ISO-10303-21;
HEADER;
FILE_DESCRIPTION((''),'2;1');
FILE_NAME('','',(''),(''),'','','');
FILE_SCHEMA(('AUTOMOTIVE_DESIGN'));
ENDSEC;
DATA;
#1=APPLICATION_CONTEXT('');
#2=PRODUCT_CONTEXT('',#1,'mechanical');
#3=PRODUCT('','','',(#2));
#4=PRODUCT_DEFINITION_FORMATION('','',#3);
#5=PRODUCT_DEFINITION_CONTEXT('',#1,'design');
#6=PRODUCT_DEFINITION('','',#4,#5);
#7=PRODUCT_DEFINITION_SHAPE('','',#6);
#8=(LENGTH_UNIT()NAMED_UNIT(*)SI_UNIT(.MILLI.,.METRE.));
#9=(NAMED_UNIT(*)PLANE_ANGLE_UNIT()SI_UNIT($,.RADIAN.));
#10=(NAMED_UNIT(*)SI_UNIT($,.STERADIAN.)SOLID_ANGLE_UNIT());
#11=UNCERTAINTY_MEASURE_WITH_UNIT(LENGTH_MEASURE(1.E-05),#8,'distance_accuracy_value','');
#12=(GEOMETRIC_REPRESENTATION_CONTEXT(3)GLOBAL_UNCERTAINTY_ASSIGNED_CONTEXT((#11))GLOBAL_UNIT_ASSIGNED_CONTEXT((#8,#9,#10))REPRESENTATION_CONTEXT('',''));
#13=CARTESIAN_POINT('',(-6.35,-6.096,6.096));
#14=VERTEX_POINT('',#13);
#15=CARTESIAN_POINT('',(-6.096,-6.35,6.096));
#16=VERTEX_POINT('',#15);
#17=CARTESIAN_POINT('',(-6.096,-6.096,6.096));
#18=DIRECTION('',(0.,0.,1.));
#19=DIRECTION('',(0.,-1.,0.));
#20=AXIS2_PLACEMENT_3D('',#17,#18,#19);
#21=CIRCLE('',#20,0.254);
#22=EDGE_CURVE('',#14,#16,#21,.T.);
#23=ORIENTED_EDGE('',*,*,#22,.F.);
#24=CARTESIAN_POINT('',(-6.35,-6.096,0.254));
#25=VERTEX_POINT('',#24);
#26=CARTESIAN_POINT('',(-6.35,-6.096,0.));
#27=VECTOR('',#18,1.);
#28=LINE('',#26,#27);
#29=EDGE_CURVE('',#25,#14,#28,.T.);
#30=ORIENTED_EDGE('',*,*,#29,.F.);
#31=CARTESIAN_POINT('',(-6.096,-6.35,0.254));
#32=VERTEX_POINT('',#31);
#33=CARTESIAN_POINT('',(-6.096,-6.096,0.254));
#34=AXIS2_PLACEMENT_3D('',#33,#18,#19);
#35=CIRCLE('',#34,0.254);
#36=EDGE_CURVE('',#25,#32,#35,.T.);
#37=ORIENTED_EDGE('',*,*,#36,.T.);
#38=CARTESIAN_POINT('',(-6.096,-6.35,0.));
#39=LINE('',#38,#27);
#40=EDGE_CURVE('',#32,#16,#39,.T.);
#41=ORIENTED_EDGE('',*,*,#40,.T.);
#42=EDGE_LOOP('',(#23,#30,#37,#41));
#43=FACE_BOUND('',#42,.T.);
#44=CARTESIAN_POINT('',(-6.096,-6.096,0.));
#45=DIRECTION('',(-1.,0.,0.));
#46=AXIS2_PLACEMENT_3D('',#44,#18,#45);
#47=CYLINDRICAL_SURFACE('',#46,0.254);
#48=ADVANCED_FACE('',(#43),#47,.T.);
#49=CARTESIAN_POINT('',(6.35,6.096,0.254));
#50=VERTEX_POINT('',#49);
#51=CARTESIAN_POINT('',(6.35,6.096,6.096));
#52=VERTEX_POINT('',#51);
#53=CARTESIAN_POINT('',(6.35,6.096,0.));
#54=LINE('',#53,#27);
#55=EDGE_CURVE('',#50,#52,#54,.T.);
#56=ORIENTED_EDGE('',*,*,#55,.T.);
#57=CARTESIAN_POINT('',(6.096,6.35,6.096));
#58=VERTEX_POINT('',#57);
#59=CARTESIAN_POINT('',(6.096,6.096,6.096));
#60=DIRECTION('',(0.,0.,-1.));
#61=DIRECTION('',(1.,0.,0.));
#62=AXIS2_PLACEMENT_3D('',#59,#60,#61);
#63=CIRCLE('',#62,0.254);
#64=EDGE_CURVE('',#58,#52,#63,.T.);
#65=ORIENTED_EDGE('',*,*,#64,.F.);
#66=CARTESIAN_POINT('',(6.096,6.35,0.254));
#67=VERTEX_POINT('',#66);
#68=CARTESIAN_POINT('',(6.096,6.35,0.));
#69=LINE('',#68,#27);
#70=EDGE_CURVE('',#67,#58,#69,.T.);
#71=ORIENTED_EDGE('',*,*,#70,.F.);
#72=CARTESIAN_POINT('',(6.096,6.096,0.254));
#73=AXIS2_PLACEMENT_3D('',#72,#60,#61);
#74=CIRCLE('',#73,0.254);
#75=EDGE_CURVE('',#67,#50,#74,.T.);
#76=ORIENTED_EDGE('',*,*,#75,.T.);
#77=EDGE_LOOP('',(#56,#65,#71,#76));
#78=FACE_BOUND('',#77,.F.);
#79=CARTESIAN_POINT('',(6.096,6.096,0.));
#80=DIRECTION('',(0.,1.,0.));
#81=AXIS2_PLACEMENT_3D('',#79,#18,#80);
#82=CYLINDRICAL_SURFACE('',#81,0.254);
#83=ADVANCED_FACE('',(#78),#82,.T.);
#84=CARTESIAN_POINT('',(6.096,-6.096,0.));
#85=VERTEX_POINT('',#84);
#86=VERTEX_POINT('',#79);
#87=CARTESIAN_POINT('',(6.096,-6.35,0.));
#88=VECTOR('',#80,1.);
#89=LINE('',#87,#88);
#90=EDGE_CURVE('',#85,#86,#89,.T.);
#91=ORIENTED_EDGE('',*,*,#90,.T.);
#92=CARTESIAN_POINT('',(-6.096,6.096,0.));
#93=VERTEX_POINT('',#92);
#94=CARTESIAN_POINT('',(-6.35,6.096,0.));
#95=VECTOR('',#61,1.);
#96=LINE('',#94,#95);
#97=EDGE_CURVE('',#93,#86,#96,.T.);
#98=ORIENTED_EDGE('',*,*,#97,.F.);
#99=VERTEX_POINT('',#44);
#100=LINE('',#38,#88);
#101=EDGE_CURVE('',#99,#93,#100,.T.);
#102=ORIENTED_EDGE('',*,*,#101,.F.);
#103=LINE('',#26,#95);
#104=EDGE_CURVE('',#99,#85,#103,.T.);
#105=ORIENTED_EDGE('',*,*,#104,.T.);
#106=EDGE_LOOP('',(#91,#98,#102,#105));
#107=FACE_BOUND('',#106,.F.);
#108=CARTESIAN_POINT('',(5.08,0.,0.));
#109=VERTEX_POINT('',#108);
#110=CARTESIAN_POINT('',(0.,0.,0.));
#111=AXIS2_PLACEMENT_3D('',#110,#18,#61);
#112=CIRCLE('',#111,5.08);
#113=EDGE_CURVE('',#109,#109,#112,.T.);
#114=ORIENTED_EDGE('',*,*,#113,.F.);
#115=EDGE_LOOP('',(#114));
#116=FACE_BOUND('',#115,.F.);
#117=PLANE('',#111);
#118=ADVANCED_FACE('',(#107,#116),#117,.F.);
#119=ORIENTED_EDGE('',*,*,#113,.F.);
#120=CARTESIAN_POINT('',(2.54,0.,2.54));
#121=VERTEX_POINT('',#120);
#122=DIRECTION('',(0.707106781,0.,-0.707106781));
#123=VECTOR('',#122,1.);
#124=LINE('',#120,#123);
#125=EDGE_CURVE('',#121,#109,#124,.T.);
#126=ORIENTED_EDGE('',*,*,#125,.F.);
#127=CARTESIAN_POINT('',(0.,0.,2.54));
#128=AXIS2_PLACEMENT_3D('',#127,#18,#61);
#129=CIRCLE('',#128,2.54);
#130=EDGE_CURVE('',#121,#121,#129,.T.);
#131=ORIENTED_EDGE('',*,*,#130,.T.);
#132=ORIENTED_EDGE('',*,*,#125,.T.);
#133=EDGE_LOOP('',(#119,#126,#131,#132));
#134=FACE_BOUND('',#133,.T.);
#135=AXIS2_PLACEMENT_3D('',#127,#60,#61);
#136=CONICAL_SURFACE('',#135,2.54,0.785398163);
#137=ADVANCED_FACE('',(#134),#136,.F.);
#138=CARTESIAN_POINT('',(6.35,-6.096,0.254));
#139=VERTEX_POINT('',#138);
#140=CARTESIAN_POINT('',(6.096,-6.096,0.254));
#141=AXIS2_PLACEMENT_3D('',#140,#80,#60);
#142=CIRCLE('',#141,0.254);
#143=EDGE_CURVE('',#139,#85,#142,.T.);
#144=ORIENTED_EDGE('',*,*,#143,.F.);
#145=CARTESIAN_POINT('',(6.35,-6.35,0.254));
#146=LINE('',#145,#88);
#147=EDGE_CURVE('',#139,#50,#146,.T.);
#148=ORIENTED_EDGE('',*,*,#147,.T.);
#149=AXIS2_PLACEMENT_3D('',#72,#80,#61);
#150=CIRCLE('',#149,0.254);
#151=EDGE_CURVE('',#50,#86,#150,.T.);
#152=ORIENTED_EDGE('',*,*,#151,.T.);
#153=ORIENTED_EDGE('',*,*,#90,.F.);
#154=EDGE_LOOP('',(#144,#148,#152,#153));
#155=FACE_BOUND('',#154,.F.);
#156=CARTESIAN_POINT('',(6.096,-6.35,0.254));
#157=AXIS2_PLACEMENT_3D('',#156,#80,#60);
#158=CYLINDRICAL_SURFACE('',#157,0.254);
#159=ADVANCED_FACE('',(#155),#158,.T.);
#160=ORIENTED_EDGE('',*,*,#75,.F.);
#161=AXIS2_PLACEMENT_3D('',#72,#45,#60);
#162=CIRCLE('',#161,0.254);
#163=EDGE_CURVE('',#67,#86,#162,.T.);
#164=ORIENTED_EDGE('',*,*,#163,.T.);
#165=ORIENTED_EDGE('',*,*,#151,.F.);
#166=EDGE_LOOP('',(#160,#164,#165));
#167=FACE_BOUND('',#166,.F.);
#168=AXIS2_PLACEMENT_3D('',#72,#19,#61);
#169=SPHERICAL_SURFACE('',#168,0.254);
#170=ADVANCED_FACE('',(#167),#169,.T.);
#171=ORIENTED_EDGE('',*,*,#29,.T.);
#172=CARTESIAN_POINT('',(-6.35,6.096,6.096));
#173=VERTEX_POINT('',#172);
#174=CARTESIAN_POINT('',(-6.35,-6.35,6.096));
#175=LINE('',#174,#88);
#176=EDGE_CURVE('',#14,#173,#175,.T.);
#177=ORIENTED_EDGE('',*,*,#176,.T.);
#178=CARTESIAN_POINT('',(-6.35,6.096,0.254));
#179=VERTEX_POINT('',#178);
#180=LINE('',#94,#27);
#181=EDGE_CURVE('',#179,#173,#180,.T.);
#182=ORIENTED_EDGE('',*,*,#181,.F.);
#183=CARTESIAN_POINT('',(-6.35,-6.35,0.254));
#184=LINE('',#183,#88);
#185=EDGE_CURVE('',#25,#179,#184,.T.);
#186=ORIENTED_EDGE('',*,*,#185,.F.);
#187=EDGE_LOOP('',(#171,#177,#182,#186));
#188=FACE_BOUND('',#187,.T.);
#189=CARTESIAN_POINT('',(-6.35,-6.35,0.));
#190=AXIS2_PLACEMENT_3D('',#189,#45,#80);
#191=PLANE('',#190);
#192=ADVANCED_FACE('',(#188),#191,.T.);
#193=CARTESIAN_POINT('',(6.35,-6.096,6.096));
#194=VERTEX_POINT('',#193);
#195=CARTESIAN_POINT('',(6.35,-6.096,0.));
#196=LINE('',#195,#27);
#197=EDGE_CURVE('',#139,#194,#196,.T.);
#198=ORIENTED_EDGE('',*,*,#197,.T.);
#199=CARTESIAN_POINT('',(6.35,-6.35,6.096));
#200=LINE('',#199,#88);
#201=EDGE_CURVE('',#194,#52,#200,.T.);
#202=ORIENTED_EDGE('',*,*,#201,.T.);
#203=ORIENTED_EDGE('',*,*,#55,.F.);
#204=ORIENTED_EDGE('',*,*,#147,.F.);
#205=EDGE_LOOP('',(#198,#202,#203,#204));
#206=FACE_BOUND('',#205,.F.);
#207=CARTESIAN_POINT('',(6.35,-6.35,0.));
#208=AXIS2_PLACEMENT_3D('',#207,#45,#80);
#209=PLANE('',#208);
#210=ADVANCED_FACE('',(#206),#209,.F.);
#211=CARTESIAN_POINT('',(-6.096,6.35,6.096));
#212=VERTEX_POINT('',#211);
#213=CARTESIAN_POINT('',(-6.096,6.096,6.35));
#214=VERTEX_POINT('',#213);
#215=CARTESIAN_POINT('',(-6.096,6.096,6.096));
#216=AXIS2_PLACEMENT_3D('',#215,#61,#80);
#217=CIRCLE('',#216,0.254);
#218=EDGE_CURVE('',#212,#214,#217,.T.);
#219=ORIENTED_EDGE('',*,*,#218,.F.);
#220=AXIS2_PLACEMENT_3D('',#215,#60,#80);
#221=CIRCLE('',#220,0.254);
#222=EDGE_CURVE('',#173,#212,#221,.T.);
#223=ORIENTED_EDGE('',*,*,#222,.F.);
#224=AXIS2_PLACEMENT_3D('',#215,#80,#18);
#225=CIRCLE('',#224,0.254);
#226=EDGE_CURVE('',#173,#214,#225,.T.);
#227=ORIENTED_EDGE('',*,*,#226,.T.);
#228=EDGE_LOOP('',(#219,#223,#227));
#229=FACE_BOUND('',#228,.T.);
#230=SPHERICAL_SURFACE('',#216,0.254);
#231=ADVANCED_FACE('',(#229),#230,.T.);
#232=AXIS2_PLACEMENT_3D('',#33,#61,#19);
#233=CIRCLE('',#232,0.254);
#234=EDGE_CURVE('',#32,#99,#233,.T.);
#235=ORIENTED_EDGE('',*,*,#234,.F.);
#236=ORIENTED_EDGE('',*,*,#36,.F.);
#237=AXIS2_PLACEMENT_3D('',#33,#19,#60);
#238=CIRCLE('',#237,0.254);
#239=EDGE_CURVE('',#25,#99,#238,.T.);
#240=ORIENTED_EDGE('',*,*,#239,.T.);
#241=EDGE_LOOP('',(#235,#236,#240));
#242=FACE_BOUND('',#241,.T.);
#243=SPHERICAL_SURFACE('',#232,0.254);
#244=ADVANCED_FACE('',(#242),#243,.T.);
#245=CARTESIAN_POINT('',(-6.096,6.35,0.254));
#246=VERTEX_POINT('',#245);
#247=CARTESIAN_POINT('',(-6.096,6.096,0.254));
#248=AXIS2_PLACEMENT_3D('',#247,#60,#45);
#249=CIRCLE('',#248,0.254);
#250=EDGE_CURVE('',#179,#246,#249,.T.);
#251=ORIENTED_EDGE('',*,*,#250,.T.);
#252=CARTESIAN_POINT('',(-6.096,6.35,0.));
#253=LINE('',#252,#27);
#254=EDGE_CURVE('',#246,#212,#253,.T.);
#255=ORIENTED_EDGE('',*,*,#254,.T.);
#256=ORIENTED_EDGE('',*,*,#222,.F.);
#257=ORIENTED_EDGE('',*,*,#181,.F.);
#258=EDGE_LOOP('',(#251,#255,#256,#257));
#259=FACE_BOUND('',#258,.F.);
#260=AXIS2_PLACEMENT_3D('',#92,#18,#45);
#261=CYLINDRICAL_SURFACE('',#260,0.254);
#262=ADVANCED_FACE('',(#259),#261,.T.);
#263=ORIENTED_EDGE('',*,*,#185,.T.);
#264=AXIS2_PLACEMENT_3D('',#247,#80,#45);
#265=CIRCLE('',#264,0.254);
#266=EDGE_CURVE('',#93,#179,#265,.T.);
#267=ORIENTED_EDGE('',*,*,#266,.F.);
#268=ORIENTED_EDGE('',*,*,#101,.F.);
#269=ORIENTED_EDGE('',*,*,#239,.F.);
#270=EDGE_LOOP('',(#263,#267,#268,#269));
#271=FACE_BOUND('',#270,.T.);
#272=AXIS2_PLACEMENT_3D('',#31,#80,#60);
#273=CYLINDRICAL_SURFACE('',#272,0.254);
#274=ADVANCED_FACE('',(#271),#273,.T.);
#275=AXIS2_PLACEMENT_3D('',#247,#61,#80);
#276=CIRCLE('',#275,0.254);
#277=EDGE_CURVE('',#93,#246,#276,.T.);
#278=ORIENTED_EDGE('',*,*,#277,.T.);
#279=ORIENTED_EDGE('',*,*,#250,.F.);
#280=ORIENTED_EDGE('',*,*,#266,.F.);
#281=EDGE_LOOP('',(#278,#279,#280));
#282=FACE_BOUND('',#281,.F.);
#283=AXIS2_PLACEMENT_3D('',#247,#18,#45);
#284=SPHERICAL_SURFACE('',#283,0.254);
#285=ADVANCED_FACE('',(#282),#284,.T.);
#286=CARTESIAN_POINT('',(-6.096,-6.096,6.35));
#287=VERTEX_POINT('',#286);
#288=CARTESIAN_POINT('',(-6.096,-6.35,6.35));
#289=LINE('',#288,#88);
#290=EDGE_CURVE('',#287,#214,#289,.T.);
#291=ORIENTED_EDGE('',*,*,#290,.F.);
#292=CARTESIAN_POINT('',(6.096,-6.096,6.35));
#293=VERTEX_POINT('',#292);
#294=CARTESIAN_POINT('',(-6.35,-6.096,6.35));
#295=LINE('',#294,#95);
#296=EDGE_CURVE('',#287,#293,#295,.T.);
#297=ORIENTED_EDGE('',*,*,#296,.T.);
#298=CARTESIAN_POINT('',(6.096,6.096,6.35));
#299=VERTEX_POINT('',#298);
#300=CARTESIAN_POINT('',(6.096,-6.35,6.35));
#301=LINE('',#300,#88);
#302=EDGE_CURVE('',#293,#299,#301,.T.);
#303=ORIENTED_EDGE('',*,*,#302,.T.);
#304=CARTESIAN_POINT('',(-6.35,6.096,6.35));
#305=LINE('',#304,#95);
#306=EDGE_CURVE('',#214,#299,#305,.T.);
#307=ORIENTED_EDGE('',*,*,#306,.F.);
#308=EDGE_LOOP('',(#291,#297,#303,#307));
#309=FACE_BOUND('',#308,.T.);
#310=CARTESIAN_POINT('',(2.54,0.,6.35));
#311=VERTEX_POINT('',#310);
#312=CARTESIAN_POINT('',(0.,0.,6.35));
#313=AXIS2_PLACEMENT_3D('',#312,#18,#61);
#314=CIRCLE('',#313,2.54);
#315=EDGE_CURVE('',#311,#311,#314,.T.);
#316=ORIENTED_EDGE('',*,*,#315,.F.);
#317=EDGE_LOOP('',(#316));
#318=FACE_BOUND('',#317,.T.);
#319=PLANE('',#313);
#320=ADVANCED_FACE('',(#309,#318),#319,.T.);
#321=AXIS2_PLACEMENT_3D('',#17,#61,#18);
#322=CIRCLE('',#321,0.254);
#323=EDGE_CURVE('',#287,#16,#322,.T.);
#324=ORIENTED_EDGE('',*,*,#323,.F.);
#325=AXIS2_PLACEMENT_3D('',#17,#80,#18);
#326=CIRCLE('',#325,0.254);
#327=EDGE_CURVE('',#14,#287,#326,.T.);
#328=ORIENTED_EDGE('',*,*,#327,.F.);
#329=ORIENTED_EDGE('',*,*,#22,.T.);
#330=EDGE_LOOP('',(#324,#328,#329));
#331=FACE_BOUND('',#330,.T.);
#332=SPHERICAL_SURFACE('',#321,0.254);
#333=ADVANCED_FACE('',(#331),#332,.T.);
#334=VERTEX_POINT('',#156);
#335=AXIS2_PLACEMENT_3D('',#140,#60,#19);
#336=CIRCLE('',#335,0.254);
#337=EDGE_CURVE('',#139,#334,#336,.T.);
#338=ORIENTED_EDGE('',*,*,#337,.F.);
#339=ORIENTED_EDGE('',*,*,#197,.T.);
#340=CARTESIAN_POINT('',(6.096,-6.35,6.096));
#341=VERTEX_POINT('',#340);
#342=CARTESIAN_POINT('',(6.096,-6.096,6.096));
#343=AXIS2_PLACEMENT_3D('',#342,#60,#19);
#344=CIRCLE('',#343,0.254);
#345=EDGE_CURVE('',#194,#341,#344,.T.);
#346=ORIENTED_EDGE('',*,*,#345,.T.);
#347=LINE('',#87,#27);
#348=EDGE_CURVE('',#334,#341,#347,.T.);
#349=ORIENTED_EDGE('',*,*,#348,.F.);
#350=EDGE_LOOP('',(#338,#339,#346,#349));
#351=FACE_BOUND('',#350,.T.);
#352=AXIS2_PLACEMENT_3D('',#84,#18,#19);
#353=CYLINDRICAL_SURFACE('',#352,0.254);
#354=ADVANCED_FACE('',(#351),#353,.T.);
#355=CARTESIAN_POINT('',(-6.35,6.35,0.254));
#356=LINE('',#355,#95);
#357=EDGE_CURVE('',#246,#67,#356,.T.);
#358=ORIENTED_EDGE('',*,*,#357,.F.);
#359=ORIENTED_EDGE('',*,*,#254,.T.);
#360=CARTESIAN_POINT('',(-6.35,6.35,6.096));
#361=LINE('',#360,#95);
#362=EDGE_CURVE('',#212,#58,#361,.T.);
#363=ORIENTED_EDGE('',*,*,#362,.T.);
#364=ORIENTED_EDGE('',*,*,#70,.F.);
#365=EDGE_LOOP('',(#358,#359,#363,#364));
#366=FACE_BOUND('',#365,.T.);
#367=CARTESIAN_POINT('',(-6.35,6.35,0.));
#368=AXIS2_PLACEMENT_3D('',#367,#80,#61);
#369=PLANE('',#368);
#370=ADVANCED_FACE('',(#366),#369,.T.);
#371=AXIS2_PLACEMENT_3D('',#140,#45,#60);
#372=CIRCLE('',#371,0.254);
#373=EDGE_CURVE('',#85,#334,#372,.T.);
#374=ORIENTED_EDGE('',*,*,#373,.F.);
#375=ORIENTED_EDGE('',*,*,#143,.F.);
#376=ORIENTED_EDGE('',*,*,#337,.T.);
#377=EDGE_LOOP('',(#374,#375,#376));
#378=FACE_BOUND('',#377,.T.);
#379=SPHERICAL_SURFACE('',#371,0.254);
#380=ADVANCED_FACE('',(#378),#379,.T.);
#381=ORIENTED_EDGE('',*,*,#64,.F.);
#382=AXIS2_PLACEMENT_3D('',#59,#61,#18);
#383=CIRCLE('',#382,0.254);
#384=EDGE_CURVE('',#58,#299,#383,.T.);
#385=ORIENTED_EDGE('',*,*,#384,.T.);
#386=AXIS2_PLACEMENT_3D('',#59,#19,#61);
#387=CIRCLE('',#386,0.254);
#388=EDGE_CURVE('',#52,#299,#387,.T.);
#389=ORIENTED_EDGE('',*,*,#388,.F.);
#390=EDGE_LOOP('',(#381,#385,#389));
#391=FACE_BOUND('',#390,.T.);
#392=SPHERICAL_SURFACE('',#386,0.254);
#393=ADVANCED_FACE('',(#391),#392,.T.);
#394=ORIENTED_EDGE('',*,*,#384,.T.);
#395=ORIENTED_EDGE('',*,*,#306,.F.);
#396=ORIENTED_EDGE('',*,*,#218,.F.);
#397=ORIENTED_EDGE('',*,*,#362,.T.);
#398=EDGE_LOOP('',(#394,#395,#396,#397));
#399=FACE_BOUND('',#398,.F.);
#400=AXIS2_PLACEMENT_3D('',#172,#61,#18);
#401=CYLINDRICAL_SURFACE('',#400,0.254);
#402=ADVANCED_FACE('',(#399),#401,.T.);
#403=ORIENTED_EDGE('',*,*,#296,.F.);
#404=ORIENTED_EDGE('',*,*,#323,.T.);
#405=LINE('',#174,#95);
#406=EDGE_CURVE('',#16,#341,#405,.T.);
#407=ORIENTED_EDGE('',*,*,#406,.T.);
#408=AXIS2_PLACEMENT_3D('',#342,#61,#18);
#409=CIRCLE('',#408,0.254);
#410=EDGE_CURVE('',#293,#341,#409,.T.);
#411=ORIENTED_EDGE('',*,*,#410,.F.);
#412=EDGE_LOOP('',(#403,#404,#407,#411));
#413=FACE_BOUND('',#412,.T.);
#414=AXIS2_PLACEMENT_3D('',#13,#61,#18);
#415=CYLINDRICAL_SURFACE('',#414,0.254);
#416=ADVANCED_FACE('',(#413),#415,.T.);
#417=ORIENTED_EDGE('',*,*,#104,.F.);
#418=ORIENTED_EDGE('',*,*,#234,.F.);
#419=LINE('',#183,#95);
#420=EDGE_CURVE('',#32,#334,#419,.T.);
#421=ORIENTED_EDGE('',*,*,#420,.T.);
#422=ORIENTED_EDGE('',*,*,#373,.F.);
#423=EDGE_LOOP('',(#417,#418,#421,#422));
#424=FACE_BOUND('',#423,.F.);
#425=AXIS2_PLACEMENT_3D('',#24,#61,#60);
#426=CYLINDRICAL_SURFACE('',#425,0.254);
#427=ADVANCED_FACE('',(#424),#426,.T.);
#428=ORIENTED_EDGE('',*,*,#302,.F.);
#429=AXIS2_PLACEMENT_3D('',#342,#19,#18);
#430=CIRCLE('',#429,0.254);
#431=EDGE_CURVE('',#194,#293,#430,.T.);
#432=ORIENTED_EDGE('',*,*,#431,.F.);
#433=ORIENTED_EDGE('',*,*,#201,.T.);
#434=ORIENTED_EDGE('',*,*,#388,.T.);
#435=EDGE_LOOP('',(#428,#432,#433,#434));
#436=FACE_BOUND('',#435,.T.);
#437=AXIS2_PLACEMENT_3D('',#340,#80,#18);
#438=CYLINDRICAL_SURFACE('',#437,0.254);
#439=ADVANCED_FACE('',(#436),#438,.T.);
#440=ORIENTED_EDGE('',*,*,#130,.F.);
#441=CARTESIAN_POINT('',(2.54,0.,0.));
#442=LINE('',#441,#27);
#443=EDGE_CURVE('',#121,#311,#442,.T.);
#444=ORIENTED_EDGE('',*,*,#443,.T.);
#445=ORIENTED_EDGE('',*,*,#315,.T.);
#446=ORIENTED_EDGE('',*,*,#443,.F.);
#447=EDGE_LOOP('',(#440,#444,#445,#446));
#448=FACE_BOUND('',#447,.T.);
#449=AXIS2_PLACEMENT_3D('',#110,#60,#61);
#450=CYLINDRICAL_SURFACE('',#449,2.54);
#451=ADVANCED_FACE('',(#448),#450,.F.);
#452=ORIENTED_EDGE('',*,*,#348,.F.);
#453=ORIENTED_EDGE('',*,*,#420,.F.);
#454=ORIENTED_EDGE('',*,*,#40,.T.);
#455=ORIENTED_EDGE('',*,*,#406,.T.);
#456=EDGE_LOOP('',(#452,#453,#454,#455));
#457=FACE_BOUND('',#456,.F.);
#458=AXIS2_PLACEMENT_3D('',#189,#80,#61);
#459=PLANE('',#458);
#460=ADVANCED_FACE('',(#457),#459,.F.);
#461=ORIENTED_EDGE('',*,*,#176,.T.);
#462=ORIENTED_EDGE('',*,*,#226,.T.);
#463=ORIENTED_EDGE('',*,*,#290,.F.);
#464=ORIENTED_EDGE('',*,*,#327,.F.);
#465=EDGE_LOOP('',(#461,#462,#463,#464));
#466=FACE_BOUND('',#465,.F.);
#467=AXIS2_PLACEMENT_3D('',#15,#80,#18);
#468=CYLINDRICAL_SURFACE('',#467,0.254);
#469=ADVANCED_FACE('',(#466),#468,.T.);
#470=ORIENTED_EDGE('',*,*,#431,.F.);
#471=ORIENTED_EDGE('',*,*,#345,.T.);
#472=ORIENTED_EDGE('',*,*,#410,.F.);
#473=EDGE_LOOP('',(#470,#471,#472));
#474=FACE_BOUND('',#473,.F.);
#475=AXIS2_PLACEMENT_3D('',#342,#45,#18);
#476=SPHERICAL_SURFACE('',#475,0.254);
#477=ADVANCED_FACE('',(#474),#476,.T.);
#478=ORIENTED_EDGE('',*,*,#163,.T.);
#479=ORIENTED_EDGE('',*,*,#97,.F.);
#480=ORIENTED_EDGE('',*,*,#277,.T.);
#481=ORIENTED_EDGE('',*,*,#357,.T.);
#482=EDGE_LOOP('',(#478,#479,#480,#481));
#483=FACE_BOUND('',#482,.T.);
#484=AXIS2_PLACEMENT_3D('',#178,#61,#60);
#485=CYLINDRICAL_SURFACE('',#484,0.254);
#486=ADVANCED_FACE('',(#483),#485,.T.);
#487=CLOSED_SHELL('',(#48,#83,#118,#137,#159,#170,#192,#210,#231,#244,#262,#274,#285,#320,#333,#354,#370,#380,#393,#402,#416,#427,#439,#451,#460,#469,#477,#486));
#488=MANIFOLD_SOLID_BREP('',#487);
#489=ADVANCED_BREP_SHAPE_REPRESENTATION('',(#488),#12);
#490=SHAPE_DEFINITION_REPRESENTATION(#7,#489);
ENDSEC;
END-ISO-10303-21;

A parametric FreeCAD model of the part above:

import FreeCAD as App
import Part
import Sketcher
from FreeCAD import Vector
Q = App.Units.Quantity


def edges_at(feature, points):
    """Names of the edges that pass closest to the given points."""
    edges = feature.Shape.Edges
    near = lambda p: min(range(len(edges)), key=lambda i: edges[i].distToShape(Part.Vertex(*p))[0])
    return sorted({f"Edge{near(p) + 1}" for p in points})

doc = App.newDocument("Part")
body = doc.addObject("PartDesign::Body", "Body")

# Sketch on XY plane
sketch1 = body.newObject("Sketcher::SketchObject", "Sketch")
sketch1.AttachmentSupport = (doc.getObject("XY_Plane"), [""])
sketch1.MapMode = "FlatFace"
sketch1.addGeometry(Part.LineSegment(Vector(-6.35, 6.35, 0), Vector(-6.35, -6.35, 0)), False)
sketch1.addGeometry(Part.LineSegment(Vector(-6.35, -6.35, 0), Vector(6.35, -6.35, 0)), False)
sketch1.addGeometry(Part.LineSegment(Vector(6.35, -6.35, 0), Vector(6.35, 6.35, 0)), False)
sketch1.addGeometry(Part.LineSegment(Vector(6.35, 6.35, 0), Vector(-6.35, 6.35, 0)), False)
sketch1.addGeometry(Part.Circle(Vector(0, 0, 0), Vector(0, 0, 1), 2.54), False)
sketch1.addConstraint(Sketcher.Constraint("Coincident", 0, 2, 1, 1))
sketch1.addConstraint(Sketcher.Constraint("Coincident", 1, 2, 2, 1))
sketch1.addConstraint(Sketcher.Constraint("Coincident", 2, 2, 3, 1))
sketch1.addConstraint(Sketcher.Constraint("Coincident", 3, 2, 0, 1))
sketch1.addConstraint(Sketcher.Constraint("Vertical", 0))
sketch1.addConstraint(Sketcher.Constraint("Horizontal", 1))
sketch1.addConstraint(Sketcher.Constraint("Vertical", 2))
sketch1.addConstraint(Sketcher.Constraint("Horizontal", 3))
sketch1.addConstraint(Sketcher.Constraint("Coincident", 4, 3, -1, 1))
sketch1.addConstraint(Sketcher.Constraint("Symmetric", 0, 2, 2, 2, -1, 1))
sketch1.addConstraint(Sketcher.Constraint("Equal", 3, 0))
sketch1.addConstraint(Sketcher.Constraint("Diameter", 4, Q("0.2 in")))
sketch1.addConstraint(Sketcher.Constraint("DistanceX", 1, 1, 1, 2, Q("0.5 in")))
pad1 = body.newObject("PartDesign::Pad", "Pad")
pad1.Profile = sketch1
pad1.Length = Q("0.25 in")
doc.recompute()

chamfer = body.newObject("PartDesign::Chamfer", "Chamfer")
chamfer.Base = (pad1, edges_at(pad1, [(-2.54, 0, 0)]))
chamfer.Size = Q("0.1 in")
doc.recompute()

fillet = body.newObject("PartDesign::Fillet", "Fillet")
fillet.Base = (chamfer, edges_at(chamfer, [
    (0, -6.35, 6.35),
    (0, -6.35, 0),
    (6.35, 0, 0),
    (6.35, 0, 6.35),
    (6.35, -6.35, 3.175),
    (6.35, 6.35, 3.175),
    (0, 6.35, 6.35),
    (-6.35, 6.35, 3.175),
    (-6.35, 0, 6.35),
    (-6.35, -6.35, 3.175),
    (-6.35, 0, 0),
    (0, 6.35, 0),
]))
fillet.Radius = Q("0.01 in")

doc.recompute()
